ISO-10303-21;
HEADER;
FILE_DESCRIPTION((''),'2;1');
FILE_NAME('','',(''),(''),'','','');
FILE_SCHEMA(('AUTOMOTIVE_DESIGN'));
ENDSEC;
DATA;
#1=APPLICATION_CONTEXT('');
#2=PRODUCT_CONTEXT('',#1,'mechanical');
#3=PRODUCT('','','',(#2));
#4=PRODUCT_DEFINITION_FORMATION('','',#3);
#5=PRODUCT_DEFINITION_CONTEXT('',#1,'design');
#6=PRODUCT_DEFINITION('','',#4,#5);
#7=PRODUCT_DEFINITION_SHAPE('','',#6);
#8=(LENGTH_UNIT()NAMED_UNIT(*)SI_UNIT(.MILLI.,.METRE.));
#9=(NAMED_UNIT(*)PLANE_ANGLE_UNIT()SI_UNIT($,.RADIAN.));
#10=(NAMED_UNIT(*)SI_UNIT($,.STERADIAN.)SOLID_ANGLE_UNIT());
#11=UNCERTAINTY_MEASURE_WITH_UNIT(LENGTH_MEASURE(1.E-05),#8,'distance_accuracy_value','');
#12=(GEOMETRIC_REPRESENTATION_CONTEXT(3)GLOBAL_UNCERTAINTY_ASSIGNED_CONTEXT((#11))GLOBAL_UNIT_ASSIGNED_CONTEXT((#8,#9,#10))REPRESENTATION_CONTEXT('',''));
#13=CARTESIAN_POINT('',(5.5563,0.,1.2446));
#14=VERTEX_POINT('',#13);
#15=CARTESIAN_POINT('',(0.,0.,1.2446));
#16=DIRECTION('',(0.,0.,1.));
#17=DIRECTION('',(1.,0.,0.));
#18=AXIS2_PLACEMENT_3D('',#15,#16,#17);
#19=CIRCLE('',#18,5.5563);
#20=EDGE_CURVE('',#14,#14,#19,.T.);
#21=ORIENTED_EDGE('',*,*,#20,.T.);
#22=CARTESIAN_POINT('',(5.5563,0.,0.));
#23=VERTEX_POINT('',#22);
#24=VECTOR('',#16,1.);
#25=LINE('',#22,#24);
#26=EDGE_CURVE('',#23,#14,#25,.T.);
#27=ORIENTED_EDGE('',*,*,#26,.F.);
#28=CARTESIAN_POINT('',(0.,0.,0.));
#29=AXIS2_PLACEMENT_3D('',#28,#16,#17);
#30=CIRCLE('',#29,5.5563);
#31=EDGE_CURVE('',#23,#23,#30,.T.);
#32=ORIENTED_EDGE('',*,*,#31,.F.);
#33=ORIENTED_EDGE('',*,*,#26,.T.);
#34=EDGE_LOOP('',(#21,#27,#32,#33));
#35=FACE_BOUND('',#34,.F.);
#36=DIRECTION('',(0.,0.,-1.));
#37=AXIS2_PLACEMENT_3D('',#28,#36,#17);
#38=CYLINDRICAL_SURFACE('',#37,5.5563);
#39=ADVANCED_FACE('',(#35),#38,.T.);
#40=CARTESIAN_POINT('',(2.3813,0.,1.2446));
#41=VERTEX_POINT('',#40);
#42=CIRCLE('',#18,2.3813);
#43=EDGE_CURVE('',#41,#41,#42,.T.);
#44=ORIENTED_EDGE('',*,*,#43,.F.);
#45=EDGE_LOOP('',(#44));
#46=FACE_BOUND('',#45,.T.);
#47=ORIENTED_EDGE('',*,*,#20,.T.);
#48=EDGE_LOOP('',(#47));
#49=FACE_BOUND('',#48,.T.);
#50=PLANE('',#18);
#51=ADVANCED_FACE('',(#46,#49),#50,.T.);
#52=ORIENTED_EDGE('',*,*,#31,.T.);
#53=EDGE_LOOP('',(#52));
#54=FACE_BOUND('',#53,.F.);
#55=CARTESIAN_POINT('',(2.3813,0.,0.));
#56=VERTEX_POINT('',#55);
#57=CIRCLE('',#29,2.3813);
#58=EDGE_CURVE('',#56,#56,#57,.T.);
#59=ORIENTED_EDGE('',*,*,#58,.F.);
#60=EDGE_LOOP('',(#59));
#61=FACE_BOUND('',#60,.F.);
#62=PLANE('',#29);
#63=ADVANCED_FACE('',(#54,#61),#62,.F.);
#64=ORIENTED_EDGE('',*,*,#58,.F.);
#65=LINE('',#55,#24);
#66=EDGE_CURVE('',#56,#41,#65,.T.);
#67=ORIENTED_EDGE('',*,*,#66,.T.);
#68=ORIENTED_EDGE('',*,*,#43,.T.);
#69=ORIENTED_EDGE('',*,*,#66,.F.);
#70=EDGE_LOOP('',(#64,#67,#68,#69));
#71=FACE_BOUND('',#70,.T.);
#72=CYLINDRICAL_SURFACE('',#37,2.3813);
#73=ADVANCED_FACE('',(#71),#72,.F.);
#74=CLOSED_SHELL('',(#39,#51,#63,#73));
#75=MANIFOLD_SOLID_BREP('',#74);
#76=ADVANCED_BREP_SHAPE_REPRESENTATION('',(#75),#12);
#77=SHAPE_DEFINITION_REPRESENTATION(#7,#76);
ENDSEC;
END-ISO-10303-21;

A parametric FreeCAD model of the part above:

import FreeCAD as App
import Part
import Sketcher
from FreeCAD import Vector
Q = App.Units.Quantity

doc = App.newDocument("Part")
body = doc.addObject("PartDesign::Body", "Body")

sketch1 = body.newObject("Sketcher::SketchObject", "Sketch")
sketch1.AttachmentSupport = (doc.getObject("XY_Plane"), [""])
sketch1.MapMode = "FlatFace"
sketch1.addGeometry([
    Part.Circle(Vector(0, 0, 0), Vector(0, 0, 1), 5.6),
    Part.Circle(Vector(0, 0, 0), Vector(0, 0, 1), 2.4),
], False)
sketch1.addConstraint([
    Sketcher.Constraint("Coincident", 0, 3, -1, 1),
    Sketcher.Constraint("Coincident", 1, 3, -1, 1),
    Sketcher.Constraint("Diameter", 0, Q("0.4375 in")),
    Sketcher.Constraint("Diameter", 1, Q("0.1875 in")),
])
pad1 = body.newObject("PartDesign::Pad", "Pad")
pad1.Profile = sketch1
pad1.Length = Q("0.049 in")

doc.recompute()
